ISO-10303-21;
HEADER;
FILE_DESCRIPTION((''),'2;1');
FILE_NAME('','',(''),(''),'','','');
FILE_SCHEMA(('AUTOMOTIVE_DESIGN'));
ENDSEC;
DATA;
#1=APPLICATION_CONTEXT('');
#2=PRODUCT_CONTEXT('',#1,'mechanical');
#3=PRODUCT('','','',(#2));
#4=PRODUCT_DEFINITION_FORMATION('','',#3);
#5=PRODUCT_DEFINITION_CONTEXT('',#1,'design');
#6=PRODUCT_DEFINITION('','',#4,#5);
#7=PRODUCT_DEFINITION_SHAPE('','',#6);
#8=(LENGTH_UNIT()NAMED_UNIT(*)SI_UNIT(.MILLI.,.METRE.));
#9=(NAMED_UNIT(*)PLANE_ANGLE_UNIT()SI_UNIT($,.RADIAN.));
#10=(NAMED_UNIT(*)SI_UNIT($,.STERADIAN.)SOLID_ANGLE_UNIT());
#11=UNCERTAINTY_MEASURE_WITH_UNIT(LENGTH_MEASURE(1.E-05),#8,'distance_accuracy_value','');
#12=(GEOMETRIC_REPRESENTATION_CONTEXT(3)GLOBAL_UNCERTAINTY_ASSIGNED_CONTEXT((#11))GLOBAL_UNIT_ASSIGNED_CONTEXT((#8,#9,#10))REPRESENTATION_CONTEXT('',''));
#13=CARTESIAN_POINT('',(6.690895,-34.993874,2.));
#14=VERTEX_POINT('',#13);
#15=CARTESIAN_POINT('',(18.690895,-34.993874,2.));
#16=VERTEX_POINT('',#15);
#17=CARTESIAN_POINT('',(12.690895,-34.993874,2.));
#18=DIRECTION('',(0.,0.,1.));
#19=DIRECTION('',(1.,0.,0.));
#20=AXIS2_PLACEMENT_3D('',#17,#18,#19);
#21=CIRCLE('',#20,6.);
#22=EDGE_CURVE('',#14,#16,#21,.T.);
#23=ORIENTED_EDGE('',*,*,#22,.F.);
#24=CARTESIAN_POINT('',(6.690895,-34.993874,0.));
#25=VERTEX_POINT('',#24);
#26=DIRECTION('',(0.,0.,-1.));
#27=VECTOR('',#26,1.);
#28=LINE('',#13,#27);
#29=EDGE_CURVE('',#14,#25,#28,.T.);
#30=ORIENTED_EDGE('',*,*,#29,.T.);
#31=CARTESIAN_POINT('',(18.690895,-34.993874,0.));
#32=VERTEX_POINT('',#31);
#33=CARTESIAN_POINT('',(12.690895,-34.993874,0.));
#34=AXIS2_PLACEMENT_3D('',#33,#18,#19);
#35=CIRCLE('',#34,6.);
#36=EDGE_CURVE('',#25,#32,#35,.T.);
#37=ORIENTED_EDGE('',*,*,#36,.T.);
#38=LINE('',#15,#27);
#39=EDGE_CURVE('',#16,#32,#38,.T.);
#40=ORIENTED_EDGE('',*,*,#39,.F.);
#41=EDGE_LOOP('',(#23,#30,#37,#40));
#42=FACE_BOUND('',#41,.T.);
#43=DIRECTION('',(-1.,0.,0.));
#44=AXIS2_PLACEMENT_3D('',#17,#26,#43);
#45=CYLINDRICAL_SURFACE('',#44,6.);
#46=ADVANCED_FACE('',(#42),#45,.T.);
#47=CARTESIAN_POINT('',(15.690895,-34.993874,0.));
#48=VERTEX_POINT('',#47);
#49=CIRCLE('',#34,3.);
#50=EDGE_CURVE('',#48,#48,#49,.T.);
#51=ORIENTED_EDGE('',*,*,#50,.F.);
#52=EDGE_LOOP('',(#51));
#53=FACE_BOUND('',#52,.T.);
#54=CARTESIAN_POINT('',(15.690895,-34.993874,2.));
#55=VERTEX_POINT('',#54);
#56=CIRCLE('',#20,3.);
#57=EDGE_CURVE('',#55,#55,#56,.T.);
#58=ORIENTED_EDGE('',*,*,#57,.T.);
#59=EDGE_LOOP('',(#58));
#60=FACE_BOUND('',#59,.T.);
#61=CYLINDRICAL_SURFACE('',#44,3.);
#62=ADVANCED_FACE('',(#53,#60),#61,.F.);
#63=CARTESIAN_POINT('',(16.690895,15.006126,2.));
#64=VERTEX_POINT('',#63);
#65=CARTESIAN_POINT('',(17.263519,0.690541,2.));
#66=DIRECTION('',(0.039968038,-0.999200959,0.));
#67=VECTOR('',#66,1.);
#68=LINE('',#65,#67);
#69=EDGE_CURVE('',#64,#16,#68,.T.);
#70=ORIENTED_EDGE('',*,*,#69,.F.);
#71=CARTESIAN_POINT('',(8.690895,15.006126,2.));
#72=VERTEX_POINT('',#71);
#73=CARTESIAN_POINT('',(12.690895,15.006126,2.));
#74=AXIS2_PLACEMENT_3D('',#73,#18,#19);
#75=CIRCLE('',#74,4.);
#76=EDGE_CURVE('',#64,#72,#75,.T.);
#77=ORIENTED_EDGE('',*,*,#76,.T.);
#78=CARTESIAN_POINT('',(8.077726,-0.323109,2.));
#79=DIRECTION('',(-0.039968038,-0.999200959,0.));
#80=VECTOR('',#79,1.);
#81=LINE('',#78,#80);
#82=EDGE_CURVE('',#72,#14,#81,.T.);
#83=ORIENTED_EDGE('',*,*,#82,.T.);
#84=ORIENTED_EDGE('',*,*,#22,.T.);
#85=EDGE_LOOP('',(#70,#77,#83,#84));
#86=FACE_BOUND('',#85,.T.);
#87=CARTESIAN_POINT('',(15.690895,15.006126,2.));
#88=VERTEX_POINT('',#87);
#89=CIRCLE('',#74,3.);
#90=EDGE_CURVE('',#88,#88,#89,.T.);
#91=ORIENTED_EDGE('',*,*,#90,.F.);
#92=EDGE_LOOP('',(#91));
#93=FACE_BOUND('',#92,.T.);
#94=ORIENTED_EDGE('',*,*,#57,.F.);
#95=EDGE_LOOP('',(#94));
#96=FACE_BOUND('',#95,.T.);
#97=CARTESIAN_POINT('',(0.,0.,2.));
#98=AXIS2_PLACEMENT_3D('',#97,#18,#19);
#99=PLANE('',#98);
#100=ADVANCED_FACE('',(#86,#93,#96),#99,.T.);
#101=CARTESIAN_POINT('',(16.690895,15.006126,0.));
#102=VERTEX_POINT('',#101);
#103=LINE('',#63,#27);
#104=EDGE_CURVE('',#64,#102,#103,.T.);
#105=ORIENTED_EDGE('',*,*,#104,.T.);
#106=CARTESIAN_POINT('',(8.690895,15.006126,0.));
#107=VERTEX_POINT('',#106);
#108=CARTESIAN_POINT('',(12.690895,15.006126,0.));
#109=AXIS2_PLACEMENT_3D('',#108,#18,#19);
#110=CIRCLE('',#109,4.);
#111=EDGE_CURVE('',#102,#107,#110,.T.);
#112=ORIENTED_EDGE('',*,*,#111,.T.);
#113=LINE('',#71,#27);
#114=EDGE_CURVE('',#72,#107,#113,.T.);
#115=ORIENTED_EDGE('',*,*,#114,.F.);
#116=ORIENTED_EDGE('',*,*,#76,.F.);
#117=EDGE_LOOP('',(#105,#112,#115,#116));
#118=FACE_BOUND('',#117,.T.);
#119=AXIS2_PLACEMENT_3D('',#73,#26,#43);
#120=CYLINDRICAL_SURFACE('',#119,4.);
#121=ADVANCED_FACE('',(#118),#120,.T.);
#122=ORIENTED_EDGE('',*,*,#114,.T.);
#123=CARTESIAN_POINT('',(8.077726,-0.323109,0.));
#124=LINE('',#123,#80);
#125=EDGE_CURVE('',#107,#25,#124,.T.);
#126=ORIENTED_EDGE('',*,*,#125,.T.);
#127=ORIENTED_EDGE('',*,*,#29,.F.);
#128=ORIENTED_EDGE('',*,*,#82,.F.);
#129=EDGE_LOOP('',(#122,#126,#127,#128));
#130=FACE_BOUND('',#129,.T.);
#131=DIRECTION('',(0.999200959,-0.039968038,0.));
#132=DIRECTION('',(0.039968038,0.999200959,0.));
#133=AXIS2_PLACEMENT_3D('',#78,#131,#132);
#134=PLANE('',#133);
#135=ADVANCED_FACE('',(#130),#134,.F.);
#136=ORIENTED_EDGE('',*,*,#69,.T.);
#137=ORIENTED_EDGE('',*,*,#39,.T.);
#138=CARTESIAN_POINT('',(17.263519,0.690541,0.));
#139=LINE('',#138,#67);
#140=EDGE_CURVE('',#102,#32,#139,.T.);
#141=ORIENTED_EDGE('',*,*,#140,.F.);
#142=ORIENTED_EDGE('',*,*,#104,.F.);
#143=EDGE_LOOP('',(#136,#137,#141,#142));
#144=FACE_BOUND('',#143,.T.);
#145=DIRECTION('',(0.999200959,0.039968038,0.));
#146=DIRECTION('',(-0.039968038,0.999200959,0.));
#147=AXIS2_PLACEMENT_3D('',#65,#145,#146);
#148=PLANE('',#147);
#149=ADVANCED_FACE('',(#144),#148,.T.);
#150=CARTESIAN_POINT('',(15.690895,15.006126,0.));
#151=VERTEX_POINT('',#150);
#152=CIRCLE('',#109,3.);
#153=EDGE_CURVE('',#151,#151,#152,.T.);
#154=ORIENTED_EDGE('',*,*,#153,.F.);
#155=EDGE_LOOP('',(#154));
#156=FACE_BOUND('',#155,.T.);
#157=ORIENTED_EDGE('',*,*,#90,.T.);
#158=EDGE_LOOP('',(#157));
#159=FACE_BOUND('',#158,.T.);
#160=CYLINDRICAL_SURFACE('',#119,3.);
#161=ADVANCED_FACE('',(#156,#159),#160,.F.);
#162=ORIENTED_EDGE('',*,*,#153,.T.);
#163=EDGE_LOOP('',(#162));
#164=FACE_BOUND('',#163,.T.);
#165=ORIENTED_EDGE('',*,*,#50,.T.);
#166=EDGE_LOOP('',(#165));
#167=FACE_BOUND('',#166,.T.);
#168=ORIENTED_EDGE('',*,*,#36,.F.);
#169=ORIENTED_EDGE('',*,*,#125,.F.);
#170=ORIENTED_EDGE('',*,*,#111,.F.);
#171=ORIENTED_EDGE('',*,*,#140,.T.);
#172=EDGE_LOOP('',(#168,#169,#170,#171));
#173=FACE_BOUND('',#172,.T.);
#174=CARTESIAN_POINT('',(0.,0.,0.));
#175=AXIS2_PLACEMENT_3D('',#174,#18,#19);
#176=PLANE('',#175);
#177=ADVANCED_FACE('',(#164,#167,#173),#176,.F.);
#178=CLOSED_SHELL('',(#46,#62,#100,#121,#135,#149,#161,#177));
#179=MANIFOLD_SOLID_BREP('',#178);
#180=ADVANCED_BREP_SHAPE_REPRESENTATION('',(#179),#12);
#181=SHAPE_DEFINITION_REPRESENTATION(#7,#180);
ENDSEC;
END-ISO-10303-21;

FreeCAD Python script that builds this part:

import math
import FreeCAD as App
import Part
import Sketcher

V = App.Vector
Q = App.Units.Quantity

doc = App.newDocument("Part")
body = doc.addObject("PartDesign::Body", "Body")

# Sketch on XY plane
sketch1 = doc.addObject("Sketcher::SketchObject", "Sketch")
body.addObject(sketch1)
sketch1.AttachmentSupport = (doc.XY_Plane, [""])
sketch1.MapMode = "FlatFace"
sketch1.addGeometry([
    Part.ArcOfCircle(Part.Circle(V(12.69, 15.01, 0), V(0, 0, 1), 4), math.radians(0), math.radians(180)),  # 0
    Part.LineSegment(V(8.69, 15.01, 0), V(6.71, -34.51, 0)),  # 1
    Part.LineSegment(V(6.71, -34.51, 0), V(6.69, -34.99, 0)),  # 2
    Part.ArcOfCircle(Part.Circle(V(12.69, -34.99, 0), V(0, 0, 1), 6), math.radians(180), math.radians(360)),  # 3
    Part.LineSegment(V(18.69, -34.99, 0), V(18.67, -34.51, 0)),  # 4
    Part.LineSegment(V(18.67, -34.51, 0), V(16.69, 15.01, 0)),  # 5
    Part.Circle(V(12.69, -34.99, 0), V(0, 0, 1), 3),  # 6
    Part.Circle(V(12.69, 15.01, 0), V(0, 0, 1), 3),  # 7
], False)
sketch1.addConstraint([
    Sketcher.Constraint("Coincident", 0, 2, 1, 1),
    Sketcher.Constraint("Coincident", 1, 2, 2, 1),
    Sketcher.Constraint("Coincident", 2, 2, 3, 1),
    Sketcher.Constraint("Coincident", 3, 2, 4, 1),
    Sketcher.Constraint("Coincident", 4, 2, 5, 1),
    Sketcher.Constraint("Coincident", 5, 2, 0, 1),
    Sketcher.Constraint("Coincident", 6, 3, 3, 3),
    Sketcher.Constraint("Coincident", 7, 3, 0, 3),
    Sketcher.Constraint("Equal", 6, 7),
    Sketcher.Constraint("Parallel", 1, 2),
    Sketcher.Constraint("Parallel", 4, 5),
    Sketcher.Constraint("Horizontal", 7, 3, 0, 2),
    Sketcher.Constraint("Horizontal", 6, 3, 2, 2),
    Sketcher.Constraint("Horizontal", 2, 2, 3, 2),
    Sketcher.Constraint("Horizontal", 1, 2, 4, 2),
    Sketcher.Constraint("Horizontal", 0, 2, 5, 2),
    Sketcher.Constraint("Vertical", 0, 3, 3, 3),
    Sketcher.Constraint("Diameter", 6, Q("6 mm")),
    Sketcher.Constraint("Radius", 0, Q("4 mm")),
    Sketcher.Constraint("Radius", 3, Q("6 mm")),
    Sketcher.Constraint("DistanceY", 3, 3, 0, 3, Q("50 mm")),
    Sketcher.Constraint("DistanceY", 1, 2, -1, 1, Q("34.514641 mm")),
    Sketcher.Constraint("DistanceX", 1, 2, 3, 3, Q("5.980831 mm")),
    Sketcher.Constraint("DistanceX", -1, 1, 0, 3, Q("12.690895 mm")),
])
pad1 = doc.addObject("PartDesign::Pad", "Pad")
body.addObject(pad1)
pad1.Profile = sketch1
pad1.Length = 2

doc.recompute()
